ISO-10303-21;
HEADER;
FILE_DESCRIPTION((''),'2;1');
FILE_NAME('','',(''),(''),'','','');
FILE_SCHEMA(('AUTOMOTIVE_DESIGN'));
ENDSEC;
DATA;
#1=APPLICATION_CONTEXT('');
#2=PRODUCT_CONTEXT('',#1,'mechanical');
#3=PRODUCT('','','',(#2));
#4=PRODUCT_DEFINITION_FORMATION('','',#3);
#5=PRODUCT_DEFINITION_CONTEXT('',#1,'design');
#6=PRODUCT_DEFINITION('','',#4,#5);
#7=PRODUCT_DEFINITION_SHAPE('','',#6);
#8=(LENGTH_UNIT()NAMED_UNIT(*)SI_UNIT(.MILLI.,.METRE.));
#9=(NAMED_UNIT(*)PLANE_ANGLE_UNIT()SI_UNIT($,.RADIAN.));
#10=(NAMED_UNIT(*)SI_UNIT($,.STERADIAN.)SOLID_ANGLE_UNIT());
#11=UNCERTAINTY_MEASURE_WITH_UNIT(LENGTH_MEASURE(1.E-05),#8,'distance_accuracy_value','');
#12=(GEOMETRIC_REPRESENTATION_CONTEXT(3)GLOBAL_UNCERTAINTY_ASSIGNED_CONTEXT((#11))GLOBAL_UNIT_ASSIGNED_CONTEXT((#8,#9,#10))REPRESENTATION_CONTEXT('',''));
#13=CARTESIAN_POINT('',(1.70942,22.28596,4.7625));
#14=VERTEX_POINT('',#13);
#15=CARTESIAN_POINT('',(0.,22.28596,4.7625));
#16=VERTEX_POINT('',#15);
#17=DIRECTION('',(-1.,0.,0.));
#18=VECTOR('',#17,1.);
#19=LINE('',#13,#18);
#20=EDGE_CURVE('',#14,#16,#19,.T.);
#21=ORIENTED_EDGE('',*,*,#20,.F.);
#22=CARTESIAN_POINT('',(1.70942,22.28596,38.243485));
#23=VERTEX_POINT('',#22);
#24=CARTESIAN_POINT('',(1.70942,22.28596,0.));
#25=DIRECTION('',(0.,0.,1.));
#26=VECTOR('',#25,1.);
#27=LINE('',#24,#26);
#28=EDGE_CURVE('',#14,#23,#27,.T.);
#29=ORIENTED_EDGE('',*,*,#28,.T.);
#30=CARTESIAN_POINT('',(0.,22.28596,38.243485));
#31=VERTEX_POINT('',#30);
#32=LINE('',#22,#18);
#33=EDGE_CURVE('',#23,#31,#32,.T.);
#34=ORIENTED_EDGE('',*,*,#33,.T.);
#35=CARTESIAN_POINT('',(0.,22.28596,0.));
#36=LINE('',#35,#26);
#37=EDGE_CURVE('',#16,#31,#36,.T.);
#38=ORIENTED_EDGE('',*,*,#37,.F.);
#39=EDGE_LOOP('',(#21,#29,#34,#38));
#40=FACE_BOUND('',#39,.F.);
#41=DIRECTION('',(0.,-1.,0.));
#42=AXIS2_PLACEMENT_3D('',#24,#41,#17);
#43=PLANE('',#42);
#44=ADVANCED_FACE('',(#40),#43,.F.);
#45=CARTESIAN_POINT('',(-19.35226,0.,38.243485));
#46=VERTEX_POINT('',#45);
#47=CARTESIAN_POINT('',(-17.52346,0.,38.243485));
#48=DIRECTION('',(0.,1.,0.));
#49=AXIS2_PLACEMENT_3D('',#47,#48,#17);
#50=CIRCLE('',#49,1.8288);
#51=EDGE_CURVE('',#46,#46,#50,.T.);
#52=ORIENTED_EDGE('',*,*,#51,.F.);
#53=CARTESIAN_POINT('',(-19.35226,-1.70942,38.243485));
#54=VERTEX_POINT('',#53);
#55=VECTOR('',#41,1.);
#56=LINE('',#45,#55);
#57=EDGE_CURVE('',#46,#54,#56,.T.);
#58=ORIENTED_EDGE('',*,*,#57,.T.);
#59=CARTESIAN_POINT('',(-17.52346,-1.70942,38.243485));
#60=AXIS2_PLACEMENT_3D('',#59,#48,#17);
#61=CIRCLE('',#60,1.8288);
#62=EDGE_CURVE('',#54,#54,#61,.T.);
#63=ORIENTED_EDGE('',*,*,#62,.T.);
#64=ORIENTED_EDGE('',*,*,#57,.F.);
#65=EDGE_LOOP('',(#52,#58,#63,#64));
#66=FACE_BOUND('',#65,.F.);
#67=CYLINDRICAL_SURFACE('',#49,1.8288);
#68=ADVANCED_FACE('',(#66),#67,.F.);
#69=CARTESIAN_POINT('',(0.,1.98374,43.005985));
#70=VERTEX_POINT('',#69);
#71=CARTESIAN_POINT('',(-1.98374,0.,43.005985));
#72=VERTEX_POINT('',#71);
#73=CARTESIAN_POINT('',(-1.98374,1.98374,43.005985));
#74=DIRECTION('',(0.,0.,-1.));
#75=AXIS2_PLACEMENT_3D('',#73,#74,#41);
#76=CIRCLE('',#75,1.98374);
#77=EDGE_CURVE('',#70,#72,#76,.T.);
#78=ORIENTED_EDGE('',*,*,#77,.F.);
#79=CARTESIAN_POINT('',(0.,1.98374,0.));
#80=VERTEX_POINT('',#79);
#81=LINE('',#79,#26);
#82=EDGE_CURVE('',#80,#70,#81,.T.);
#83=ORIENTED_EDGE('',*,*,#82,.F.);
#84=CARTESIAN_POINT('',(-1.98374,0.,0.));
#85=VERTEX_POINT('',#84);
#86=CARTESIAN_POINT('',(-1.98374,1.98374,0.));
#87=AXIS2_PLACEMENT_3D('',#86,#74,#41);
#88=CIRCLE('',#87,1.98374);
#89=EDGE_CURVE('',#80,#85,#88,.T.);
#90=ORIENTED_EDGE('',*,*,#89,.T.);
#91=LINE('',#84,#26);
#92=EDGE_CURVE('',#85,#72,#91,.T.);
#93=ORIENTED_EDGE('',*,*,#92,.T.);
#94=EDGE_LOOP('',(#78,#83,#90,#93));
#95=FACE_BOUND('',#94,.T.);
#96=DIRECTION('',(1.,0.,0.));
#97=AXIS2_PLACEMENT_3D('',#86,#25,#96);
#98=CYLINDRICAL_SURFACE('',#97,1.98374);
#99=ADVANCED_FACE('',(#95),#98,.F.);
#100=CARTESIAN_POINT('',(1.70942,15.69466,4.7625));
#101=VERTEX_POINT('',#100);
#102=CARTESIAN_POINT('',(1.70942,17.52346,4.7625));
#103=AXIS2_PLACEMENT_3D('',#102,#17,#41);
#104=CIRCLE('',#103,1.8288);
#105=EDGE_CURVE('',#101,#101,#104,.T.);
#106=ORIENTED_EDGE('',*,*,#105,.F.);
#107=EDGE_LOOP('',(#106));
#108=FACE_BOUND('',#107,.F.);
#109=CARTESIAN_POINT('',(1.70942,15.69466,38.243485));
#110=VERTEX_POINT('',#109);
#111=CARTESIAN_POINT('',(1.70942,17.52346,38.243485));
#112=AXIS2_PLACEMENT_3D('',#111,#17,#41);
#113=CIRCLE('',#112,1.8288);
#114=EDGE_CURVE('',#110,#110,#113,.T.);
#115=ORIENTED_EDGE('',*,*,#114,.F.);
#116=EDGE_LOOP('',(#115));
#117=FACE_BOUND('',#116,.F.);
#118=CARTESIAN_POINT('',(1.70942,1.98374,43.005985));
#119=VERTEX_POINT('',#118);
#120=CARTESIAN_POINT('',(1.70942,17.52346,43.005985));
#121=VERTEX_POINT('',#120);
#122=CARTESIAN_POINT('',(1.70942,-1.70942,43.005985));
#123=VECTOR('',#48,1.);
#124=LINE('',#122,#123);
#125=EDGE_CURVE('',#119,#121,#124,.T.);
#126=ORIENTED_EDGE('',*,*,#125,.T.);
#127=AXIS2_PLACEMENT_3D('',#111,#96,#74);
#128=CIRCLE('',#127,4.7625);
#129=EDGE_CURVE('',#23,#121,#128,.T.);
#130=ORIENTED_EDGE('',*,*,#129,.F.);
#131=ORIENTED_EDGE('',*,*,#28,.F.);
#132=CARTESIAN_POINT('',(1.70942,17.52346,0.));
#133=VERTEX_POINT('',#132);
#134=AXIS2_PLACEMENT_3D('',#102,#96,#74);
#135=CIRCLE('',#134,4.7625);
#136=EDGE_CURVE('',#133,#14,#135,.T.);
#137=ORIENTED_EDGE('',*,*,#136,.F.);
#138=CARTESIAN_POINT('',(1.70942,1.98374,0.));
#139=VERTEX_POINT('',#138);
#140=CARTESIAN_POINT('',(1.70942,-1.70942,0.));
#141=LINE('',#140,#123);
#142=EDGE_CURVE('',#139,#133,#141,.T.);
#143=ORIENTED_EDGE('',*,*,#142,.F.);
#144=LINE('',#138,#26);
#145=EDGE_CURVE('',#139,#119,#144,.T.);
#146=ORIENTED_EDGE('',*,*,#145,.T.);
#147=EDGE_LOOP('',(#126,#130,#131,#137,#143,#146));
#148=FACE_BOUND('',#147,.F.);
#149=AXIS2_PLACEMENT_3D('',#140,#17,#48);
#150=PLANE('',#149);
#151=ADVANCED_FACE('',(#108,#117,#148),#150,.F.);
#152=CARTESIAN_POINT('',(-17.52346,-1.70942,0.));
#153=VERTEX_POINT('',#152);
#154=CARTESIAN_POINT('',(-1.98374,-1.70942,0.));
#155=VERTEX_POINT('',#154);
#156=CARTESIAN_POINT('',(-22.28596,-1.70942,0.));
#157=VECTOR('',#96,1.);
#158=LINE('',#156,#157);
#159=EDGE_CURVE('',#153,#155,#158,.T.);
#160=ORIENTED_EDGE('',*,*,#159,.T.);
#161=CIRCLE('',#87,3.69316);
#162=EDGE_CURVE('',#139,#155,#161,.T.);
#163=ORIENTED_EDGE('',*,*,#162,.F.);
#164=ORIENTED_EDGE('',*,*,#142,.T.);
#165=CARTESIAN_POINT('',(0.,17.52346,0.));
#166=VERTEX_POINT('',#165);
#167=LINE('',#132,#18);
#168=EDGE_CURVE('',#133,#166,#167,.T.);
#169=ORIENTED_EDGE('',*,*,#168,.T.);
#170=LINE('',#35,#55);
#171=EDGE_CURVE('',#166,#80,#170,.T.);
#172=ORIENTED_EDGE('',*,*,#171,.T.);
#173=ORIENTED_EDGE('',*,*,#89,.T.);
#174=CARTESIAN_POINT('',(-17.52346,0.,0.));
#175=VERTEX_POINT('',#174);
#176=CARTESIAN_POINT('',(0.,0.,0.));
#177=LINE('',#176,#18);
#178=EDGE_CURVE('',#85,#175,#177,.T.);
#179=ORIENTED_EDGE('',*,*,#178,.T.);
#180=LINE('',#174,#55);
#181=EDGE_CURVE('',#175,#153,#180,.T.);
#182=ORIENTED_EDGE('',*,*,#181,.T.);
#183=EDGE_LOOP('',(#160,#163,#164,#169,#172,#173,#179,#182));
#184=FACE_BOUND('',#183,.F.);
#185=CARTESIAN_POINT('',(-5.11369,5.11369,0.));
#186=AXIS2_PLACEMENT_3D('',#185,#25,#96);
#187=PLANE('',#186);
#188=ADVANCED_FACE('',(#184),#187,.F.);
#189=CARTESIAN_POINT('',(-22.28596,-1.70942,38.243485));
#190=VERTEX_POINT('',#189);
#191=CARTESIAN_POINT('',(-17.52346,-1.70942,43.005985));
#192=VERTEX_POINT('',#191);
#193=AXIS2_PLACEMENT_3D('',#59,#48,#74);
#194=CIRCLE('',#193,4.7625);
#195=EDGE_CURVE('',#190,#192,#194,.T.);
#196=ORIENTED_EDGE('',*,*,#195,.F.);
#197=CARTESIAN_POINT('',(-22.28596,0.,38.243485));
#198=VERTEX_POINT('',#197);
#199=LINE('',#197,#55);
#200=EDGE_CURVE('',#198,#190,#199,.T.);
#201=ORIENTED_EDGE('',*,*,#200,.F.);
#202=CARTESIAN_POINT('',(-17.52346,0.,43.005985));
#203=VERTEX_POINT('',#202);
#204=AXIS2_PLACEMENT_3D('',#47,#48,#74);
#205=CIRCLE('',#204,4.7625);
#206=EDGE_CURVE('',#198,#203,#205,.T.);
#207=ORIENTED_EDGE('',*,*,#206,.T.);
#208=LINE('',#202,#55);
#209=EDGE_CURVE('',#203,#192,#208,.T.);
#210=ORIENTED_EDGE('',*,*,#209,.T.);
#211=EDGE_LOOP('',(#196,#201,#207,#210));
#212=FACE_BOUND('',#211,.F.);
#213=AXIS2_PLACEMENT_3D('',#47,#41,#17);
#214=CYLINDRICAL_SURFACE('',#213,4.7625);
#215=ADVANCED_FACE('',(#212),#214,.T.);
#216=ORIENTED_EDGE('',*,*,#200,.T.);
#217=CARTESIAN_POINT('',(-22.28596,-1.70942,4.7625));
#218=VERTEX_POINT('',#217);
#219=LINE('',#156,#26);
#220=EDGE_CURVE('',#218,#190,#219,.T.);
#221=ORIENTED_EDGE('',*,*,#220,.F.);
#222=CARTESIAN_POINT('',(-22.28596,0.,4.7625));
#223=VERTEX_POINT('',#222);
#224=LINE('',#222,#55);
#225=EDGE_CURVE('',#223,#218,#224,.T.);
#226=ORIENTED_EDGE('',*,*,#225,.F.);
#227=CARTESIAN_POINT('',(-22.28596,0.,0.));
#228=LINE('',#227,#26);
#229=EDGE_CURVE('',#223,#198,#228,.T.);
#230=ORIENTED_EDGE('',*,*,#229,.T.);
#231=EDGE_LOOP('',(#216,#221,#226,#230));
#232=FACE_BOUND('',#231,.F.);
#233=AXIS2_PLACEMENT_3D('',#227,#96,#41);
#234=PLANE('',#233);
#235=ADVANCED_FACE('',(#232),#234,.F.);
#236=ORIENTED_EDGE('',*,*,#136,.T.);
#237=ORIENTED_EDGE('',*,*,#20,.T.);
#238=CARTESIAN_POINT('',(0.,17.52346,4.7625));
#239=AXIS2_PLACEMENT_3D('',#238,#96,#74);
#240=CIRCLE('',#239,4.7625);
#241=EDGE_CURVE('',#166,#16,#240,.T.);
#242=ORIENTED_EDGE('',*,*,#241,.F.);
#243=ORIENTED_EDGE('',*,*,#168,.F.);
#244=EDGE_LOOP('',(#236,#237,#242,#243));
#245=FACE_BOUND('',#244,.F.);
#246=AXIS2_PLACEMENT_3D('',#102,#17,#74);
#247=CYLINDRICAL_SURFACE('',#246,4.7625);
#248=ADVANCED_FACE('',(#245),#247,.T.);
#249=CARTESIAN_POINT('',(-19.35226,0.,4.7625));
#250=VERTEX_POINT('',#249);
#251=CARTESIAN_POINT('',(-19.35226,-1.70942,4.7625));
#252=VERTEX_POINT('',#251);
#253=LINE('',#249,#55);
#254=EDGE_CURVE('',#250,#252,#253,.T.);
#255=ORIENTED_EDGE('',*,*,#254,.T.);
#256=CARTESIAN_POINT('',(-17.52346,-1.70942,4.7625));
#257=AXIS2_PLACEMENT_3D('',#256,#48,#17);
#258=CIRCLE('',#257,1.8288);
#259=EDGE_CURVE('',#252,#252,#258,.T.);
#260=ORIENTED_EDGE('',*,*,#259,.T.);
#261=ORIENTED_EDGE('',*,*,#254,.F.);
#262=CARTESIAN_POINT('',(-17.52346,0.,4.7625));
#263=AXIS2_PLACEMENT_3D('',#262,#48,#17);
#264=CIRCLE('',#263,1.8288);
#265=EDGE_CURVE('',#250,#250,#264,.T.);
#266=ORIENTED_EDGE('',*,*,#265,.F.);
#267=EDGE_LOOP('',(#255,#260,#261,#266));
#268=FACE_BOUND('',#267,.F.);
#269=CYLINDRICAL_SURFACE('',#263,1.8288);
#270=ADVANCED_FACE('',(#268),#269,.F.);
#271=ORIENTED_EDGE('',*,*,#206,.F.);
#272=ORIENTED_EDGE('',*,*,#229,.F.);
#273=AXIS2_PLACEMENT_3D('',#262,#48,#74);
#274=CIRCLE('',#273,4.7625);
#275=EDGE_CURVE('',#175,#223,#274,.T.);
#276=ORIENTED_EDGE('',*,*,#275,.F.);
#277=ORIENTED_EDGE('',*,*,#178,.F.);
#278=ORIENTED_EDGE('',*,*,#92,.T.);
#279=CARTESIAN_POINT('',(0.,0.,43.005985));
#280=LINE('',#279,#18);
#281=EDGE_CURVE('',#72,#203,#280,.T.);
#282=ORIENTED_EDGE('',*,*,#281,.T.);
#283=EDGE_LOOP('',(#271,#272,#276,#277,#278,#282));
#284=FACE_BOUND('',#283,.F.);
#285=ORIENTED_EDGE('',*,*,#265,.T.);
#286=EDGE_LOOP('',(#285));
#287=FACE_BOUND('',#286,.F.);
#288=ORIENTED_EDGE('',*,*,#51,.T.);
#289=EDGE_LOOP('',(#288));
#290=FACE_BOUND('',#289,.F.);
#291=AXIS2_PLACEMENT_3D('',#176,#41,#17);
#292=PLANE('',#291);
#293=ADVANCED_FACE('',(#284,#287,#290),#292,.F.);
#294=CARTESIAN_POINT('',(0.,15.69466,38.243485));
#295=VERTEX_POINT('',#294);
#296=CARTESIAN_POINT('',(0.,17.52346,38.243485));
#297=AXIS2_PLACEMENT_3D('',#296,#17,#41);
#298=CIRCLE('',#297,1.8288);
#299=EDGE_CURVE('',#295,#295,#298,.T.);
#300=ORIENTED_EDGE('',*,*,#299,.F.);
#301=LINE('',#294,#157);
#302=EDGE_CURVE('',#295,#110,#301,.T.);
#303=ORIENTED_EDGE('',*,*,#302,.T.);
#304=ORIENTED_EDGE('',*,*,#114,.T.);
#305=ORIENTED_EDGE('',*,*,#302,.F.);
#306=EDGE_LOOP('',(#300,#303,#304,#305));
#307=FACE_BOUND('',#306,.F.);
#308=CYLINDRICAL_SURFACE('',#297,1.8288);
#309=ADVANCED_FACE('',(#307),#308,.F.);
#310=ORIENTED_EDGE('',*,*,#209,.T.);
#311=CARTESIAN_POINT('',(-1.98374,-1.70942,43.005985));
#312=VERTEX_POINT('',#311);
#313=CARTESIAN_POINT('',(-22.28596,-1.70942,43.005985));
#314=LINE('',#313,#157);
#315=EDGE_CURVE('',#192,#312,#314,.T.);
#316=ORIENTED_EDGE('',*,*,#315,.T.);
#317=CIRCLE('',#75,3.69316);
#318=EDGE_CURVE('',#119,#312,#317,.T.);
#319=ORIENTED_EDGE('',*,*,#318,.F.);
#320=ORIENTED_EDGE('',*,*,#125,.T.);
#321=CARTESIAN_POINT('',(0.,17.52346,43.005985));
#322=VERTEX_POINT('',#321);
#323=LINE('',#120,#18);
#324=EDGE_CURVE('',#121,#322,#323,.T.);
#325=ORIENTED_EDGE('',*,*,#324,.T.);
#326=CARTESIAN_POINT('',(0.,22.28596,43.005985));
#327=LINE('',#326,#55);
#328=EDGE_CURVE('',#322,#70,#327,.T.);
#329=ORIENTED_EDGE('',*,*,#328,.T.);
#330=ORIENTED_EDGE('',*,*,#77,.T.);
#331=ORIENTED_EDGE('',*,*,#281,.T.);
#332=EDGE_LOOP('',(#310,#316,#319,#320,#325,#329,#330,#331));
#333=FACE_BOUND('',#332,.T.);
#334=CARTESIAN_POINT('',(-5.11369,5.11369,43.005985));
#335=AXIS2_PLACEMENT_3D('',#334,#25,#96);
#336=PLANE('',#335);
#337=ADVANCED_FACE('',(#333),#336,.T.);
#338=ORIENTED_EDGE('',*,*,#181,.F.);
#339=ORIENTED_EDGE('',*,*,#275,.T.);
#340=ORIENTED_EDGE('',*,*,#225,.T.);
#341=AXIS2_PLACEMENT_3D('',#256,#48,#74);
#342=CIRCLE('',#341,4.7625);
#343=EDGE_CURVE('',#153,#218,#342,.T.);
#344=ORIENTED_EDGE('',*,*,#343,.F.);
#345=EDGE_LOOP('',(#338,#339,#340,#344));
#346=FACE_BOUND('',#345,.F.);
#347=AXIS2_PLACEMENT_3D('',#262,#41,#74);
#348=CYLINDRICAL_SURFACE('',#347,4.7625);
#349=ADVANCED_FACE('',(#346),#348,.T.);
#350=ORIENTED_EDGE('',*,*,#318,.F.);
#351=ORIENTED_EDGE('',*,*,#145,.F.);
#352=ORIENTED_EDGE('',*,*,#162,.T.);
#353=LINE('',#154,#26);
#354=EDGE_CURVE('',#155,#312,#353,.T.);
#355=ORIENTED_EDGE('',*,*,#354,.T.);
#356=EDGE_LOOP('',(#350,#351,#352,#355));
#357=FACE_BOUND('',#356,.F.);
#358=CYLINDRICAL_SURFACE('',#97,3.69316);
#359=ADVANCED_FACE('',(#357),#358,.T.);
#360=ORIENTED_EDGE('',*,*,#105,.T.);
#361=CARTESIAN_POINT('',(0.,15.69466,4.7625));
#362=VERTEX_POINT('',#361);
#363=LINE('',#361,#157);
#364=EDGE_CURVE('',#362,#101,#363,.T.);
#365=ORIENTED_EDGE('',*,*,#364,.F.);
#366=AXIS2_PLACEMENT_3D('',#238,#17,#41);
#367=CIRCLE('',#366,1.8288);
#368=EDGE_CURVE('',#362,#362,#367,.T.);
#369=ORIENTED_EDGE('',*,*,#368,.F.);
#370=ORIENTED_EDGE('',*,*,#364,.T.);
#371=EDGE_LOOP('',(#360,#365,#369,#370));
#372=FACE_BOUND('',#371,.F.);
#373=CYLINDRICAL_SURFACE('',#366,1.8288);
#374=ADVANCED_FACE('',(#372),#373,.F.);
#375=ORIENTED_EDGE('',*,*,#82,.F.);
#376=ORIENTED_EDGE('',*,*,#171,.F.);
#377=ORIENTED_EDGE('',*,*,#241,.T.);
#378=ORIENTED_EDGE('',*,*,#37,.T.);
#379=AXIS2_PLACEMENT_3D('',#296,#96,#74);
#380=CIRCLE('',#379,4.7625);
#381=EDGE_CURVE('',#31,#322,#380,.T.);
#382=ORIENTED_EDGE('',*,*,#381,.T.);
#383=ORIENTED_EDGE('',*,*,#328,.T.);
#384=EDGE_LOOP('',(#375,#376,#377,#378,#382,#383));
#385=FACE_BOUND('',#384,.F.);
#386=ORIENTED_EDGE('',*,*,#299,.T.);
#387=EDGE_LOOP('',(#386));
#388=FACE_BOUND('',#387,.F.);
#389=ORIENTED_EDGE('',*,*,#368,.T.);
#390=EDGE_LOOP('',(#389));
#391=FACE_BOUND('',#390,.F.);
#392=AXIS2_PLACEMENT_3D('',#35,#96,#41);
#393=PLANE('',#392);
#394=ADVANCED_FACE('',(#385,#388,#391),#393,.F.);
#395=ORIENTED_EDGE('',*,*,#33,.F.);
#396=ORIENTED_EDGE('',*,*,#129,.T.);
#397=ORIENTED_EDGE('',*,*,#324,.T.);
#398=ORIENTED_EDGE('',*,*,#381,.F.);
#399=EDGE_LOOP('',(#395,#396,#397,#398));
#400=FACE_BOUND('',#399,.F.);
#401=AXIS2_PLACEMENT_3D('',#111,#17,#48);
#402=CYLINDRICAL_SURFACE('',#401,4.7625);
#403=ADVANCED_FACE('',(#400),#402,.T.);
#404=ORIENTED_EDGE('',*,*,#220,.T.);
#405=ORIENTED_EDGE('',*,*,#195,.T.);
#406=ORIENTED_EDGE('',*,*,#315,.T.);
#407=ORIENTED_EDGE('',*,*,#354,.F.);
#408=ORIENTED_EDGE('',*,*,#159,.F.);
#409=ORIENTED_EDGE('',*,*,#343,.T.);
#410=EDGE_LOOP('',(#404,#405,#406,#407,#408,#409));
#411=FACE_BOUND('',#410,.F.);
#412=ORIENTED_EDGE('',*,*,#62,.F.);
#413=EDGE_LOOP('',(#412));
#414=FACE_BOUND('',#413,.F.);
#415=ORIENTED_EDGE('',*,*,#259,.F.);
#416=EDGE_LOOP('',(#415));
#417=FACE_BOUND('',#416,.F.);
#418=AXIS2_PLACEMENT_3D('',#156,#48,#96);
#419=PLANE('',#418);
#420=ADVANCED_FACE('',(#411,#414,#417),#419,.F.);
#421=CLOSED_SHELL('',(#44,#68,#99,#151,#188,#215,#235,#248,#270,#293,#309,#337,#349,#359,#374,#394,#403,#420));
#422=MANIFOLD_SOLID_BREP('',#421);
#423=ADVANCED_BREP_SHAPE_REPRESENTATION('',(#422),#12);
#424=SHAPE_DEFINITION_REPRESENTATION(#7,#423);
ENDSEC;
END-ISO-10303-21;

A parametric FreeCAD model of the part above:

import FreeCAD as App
import Part
import Sketcher
Q = App.Units.Quantity


def edges_at(feature, points):
    """Names of the edges that pass closest to the given points."""
    edges = feature.Shape.Edges
    near = lambda p: min(range(len(edges)), key=lambda i: edges[i].distToShape(Part.Vertex(*p))[0])
    return sorted({f"Edge{near(p) + 1}" for p in points})


def add_polygon(sketch, points):
    """Adds a closed chain of lines whose ends are joined by coincident constraints."""
    first, n = sketch.GeometryCount, len(points)
    for a, b in zip(points, points[1:] + points[:1]):
        sketch.addGeometry(Part.LineSegment(App.Vector(*a, 0), App.Vector(*b, 0)), False)
    for i in range(n):
        sketch.addConstraint(Sketcher.Constraint("Coincident", first + i, 2, first + (i + 1) % n, 1))

doc = App.newDocument("Part")
body = doc.addObject("PartDesign::Body", "Body")

sketch1 = body.newObject("Sketcher::SketchObject", "Sketch")
sketch1.AttachmentSupport = (doc.getObject("XY_Plane"), [""])
sketch1.MapMode = "FlatFace"
add_polygon(sketch1, [(1.7, 22.3), (0, 22.3), (0, 0), (-22.3, 0), (-22.3, -1.7), (1.7, -1.7)])
sketch1.addConstraint([
    Sketcher.Constraint("Horizontal", 0),
    Sketcher.Constraint("Vertical", 1),
    Sketcher.Constraint("Horizontal", 2),
    Sketcher.Constraint("Vertical", 3),
    Sketcher.Constraint("Horizontal", 4),
    Sketcher.Constraint("Vertical", 5),
    Sketcher.Constraint("Coincident", 1, 2, -1, 1),
    Sketcher.Constraint("Equal", 2, 1),
    Sketcher.Constraint("Equal", 0, 3),
    Sketcher.Constraint("DistanceX", 0, 2, 0, 1, Q("0.0673 in")),
    Sketcher.Constraint("DistanceX", 2, 2, 2, 1, Q("0.8774 in")),
])
pad1 = body.newObject("PartDesign::Pad", "Pad")
pad1.Profile = sketch1
pad1.Length = 43.005985
doc.recompute()

fillet = body.newObject("PartDesign::Fillet", "Fillet")
fillet.Base = (pad1, edges_at(pad1, [(0, 0, 21.503)]))
fillet.Radius = Q("0.0781 in")
doc.recompute()

fillet2 = body.newObject("PartDesign::Fillet", "Fillet001")
fillet2.Base = (fillet, edges_at(fillet, [(1.709, -1.709, 21.503)]))
fillet2.Radius = Q("0.1454 in")

sketch2 = body.newObject("Sketcher::SketchObject", "Sketch001")
sketch2.AttachmentSupport = (doc.getObject("YZ_Plane"), [""])
sketch2.MapMode = "FlatFace"
sketch2.addGeometry([
    Part.Circle(App.Vector(17.5, 38.2, 0), App.Vector(0, 0, 1), 1.8),
    Part.Circle(App.Vector(17.5, 4.8, 0), App.Vector(0, 0, 1), 1.8),
], False)
sketch2.addConstraint([
    Sketcher.Constraint("Equal", 0, 1),
    Sketcher.Constraint("Vertical", 0, 3, 1, 3),
    Sketcher.Constraint("Diameter", 0, Q("0.144 in")),
    Sketcher.Constraint("DistanceY", -1, 1, 1, 3, Q("0.1875 in")),
    Sketcher.Constraint("DistanceX", -1, 1, 0, 3, Q("0.6899 in")),
    Sketcher.Constraint("DistanceY", -1, 1, 0, 3, 38.243485),
])
pocket1 = body.newObject("PartDesign::Pocket", "Pocket")
pocket1.Profile = sketch2
pocket1.Type = "ThroughAll"
pocket1.Reversed = True

sketch3 = body.newObject("Sketcher::SketchObject", "Sketch002")
sketch3.AttachmentSupport = (doc.getObject("XZ_Plane"), [""])
sketch3.MapMode = "FlatFace"
sketch3.addGeometry([
    Part.Circle(App.Vector(-17.5, 38.2, 0), App.Vector(0, 0, 1), 1.8),
    Part.Circle(App.Vector(-17.5, 4.8, 0), App.Vector(0, 0, 1), 1.8),
], False)
sketch3.addConstraint([
    Sketcher.Constraint("Equal", 0, 1),
    Sketcher.Constraint("Vertical", 0, 3, 1, 3),
    Sketcher.Constraint("Diameter", 0, Q("0.144 in")),
    Sketcher.Constraint("DistanceY", -1, 1, 1, 3, Q("0.1875 in")),
    Sketcher.Constraint("DistanceX", 0, 3, -1, 1, Q("0.6899 in")),
    Sketcher.Constraint("DistanceY", -1, 1, 0, 3, 38.243485),
])
pocket2 = body.newObject("PartDesign::Pocket", "Pocket001")
pocket2.Profile = sketch3
pocket2.Type = "ThroughAll"
pocket2.Reversed = True
doc.recompute()

fillet3 = body.newObject("PartDesign::Fillet", "Fillet002")
fillet3.Base = (pocket2, edges_at(pocket2, [
    (0.855, 22.286, 43.006),
    (-22.286, -0.855, 43.006),
    (-22.286, -0.855, 0),
    (0.855, 22.286, 0),
]))
fillet3.Radius = Q("0.1875 in")

doc.recompute()
